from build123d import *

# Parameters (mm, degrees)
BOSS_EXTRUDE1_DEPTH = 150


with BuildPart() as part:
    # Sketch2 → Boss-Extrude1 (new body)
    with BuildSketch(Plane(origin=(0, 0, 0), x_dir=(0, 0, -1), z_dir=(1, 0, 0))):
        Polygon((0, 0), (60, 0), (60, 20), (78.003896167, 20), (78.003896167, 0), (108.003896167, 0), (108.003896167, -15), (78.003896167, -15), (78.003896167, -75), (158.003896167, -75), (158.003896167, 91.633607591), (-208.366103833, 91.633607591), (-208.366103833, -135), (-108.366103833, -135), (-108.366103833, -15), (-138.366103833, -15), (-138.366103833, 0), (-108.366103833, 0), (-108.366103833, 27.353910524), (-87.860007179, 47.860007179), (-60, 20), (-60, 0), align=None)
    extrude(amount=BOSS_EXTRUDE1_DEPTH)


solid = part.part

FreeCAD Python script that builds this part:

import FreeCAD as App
import Part
import Sketcher
Q = App.Units.Quantity


def add_polygon(sketch, points):
    """Adds a closed chain of lines whose ends are joined by coincident constraints."""
    first, n = sketch.GeometryCount, len(points)
    for a, b in zip(points, points[1:] + points[:1]):
        sketch.addGeometry(Part.LineSegment(App.Vector(*a, 0), App.Vector(*b, 0)), False)
    for i in range(n):
        sketch.addConstraint(Sketcher.Constraint("Coincident", first + i, 2, first + (i + 1) % n, 1))

doc = App.newDocument("Part")
params = doc.addObject("Spreadsheet::Sheet", "Params")
for row, (alias, value) in enumerate([
    ("sketch1_width", "20 mm"),
    ("sketch1_width2", "15 mm"),
    ("sketch1_width3", "60 mm"),
    ("sketch1_width4", "120 mm"),
    ("sketch1_height", "30 mm"),
    ("pad1_length", "150 mm"),
], start=1):
    params.set(f"A{row}", alias)
    params.set(f"B{row}", "=" + value)
    params.setAlias(f"B{row}", alias)

body = doc.addObject("PartDesign::Body", "Body")

sketch1 = body.newObject("Sketcher::SketchObject", "Sketch")
sketch1.AttachmentSupport = (doc.getObject("YZ_Plane"), [""])
sketch1.MapMode = "FlatFace"
add_polygon(sketch1, [(0, -60), (20, -60), (20, -78), (0, -78), (0, -108), (-15, -108), (-15, -78), (-75, -78), (-75, -158), (92, -158), (92, 208), (-135, 208), (-135, 108), (-15, 108), (-15, 138), (0, 138), (0, 108), (27, 108), (48, 88), (20, 60), (0, 60)])
sketch1.addConstraint([
    Sketcher.Constraint("Horizontal", 0),
    Sketcher.Constraint("Vertical", 1),
    Sketcher.Constraint("Horizontal", 2),
    Sketcher.Constraint("Vertical", 3),
    Sketcher.Constraint("Horizontal", 4),
    Sketcher.Constraint("Vertical", 5),
    Sketcher.Constraint("Horizontal", 6),
    Sketcher.Constraint("Vertical", 7),
    Sketcher.Constraint("Horizontal", 8),
    Sketcher.Constraint("Vertical", 9),
    Sketcher.Constraint("Horizontal", 10),
    Sketcher.Constraint("Vertical", 11),
    Sketcher.Constraint("Horizontal", 12),
    Sketcher.Constraint("Vertical", 13),
    Sketcher.Constraint("Horizontal", 14),
    Sketcher.Constraint("Vertical", 15),
    Sketcher.Constraint("Horizontal", 16),
    Sketcher.Constraint("Horizontal", 19),
    Sketcher.Constraint("Vertical", 20),
    Sketcher.Constraint("Symmetric", 19, 2, 20, 2, -1, 1),
    Sketcher.Constraint("PointOnObject", 2, 2, -2),
    Sketcher.Constraint("PointOnObject", 14, 2, -2),
    Sketcher.Constraint("Perpendicular", 17, 18),
    Sketcher.Constraint("Horizontal", 2, 2, 5, 2),
    Sketcher.Constraint("Horizontal", 12, 2, 15, 2),
    Sketcher.Constraint("Vertical", 5, 2, 12, 2),
    Sketcher.Constraint("Vertical", 1, 2, 18, 2),
    Sketcher.Constraint("Equal", 5, 13),
    Sketcher.Constraint("Equal", 12, 20),
    Sketcher.Constraint("DistanceX", 0, 1, 0, 2, 20.0),
    Sketcher.Constraint("DistanceX", 4, 2, 4, 1, 15.0),
    Sketcher.Constraint("DistanceX", 6, 2, 6, 1, 60.0),
    Sketcher.Constraint("DistanceX", 12, 1, 12, 2, 120.0),
    Sketcher.Constraint("DistanceY", 3, 2, 3, 1, 30.0),
    Sketcher.Constraint("DistanceY", 7, 2, 7, 1, 80.0),
    Sketcher.Constraint("DistanceY", 11, 2, 11, 1, 100.0),
    Sketcher.Constraint("Angle", 17, Q("-45 deg")),
    Sketcher.Constraint("Distance", 17, 29.0),
    Sketcher.Constraint("Distance", 18, 39.4),
    Sketcher.Constraint("DistanceY", 9, 1, 9, 2, 366.37),
    Sketcher.Constraint("DistanceX", 8, 1, 8, 2, 166.633608),
])
sketch1.setExpression("Constraints[50]", "Params.sketch1_width")
sketch1.setExpression("Constraints[51]", "Params.sketch1_width2")
sketch1.setExpression("Constraints[52]", "Params.sketch1_width3")
sketch1.setExpression("Constraints[53]", "Params.sketch1_width4")
sketch1.setExpression("Constraints[54]", "Params.sketch1_height")
pad1 = body.newObject("PartDesign::Pad", "Pad")
pad1.Profile = sketch1
pad1.setExpression("Length", "Params.pad1_length")

doc.recompute()
